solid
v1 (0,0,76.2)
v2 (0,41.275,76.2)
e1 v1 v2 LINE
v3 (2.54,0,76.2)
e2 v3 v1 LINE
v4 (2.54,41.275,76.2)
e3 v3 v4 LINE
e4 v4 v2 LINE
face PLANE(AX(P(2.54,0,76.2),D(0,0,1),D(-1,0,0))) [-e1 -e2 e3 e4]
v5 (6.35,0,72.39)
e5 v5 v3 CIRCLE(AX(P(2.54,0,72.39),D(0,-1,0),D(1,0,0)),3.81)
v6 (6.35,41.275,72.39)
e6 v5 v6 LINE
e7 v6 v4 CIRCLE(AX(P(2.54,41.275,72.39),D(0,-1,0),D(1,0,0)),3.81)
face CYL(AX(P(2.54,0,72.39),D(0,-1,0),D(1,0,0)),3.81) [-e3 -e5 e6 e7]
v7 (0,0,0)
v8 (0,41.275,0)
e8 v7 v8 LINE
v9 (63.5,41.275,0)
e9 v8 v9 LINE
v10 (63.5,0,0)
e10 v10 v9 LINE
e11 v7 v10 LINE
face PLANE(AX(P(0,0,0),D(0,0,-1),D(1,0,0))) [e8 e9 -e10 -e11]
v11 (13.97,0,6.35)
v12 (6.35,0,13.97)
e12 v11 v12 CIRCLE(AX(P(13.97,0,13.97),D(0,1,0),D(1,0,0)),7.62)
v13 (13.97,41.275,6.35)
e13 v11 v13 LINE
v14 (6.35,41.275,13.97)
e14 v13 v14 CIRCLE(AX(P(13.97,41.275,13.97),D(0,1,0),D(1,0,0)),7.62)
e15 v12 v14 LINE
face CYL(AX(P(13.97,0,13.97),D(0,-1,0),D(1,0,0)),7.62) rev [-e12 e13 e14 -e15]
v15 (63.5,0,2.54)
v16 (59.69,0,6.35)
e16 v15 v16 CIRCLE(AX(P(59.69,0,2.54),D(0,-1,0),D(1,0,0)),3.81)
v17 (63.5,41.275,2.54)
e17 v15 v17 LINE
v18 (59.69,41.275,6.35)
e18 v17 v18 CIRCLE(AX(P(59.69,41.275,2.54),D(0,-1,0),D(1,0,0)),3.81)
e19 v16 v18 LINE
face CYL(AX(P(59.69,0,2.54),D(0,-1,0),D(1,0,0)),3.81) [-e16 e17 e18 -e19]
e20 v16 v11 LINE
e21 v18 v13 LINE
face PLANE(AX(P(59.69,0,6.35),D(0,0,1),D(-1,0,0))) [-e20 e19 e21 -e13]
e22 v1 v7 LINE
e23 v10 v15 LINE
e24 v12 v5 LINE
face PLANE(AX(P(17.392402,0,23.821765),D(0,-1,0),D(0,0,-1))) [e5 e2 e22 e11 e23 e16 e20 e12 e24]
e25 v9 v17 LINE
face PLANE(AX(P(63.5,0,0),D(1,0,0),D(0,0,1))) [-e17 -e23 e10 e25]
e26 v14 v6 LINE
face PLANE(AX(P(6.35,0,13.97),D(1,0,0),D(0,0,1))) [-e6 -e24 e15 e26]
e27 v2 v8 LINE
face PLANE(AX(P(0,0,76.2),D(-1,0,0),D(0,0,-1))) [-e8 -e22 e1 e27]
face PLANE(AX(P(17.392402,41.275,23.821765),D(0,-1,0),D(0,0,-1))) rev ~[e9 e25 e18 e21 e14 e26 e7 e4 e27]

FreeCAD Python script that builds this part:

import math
import FreeCAD as App
import Part
import Sketcher

V = App.Vector
Q = App.Units.Quantity

doc = App.newDocument("Part")
body = doc.addObject("PartDesign::Body", "Body")

sketch1 = body.newObject("Sketcher::SketchObject", "Sketch")
sketch1.AttachmentSupport = (doc.getObject("XZ_Plane"), [""])
sketch1.MapMode = "FlatFace"
sketch1.addGeometry(Part.LineSegment(V(2.54, 76.2, 0), V(0, 76.2, 0)), False)
sketch1.addGeometry(Part.LineSegment(V(0, 76.2, 0), V(0, 0, 0)), False)
sketch1.addGeometry(Part.LineSegment(V(0, 0, 0), V(63.5, 0, 0)), False)
sketch1.addGeometry(Part.LineSegment(V(63.5, 0, 0), V(63.5, 2.54, 0)), False)
sketch1.addGeometry(Part.ArcOfCircle(Part.Circle(V(59.69, 2.54, 0), V(0, 0, 1), 3.81), math.radians(0), math.radians(90)), False)
sketch1.addGeometry(Part.LineSegment(V(59.69, 6.35, 0), V(13.97, 6.35, 0)), False)
sketch1.addGeometry(Part.ArcOfCircle(Part.Circle(V(13.97, 13.97, 0), V(0, 0, 1), 7.62), math.radians(180), math.radians(270)), False)
sketch1.addGeometry(Part.LineSegment(V(6.35, 13.97, 0), V(6.35, 72.39, 0)), False)
sketch1.addGeometry(Part.ArcOfCircle(Part.Circle(V(2.54, 72.39, 0), V(0, 0, 1), 3.81), math.radians(0), math.radians(90)), False)
sketch1.addConstraint(Sketcher.Constraint("Coincident", 0, 2, 1, 1))
sketch1.addConstraint(Sketcher.Constraint("Coincident", 1, 2, 2, 1))
sketch1.addConstraint(Sketcher.Constraint("Coincident", 2, 2, 3, 1))
sketch1.addConstraint(Sketcher.Constraint("Tangent", 3, 2, 4, 1))
sketch1.addConstraint(Sketcher.Constraint("Tangent", 4, 2, 5, 1))
sketch1.addConstraint(Sketcher.Constraint("Tangent", 5, 2, 6, 2))
sketch1.addConstraint(Sketcher.Constraint("Tangent", 6, 1, 7, 1))
sketch1.addConstraint(Sketcher.Constraint("Tangent", 7, 2, 8, 1))
sketch1.addConstraint(Sketcher.Constraint("Tangent", 8, 2, 0, 1))
sketch1.addConstraint(Sketcher.Constraint("Horizontal", 0))
sketch1.addConstraint(Sketcher.Constraint("Vertical", 1))
sketch1.addConstraint(Sketcher.Constraint("Horizontal", 2))
sketch1.addConstraint(Sketcher.Constraint("Vertical", 3))
sketch1.addConstraint(Sketcher.Constraint("Horizontal", 5))
sketch1.addConstraint(Sketcher.Constraint("Vertical", 7))
sketch1.addConstraint(Sketcher.Constraint("Coincident", 1, 2, -1, 1))
sketch1.addConstraint(Sketcher.Constraint("Equal", 4, 8))
sketch1.addConstraint(Sketcher.Constraint("Equal", 0, 3))
sketch1.addConstraint(Sketcher.Constraint("Radius", 6, Q("0.3 in")))
sketch1.addConstraint(Sketcher.Constraint("DistanceY", 1, 2, 1, 1, Q("3 in")))
sketch1.addConstraint(Sketcher.Constraint("Radius", 4, Q("0.15 in")))
sketch1.addConstraint(Sketcher.Constraint("DistanceX", 0, 2, 0, 1, Q("0.1 in")))
sketch1.addConstraint(Sketcher.Constraint("DistanceX", 2, 1, 2, 2, Q("2.5 in")))
pad1 = body.newObject("PartDesign::Pad", "Pad")
pad1.Profile = sketch1
pad1.Length = Q("1.625 in")
pad1.Reversed = True

doc.recompute()
